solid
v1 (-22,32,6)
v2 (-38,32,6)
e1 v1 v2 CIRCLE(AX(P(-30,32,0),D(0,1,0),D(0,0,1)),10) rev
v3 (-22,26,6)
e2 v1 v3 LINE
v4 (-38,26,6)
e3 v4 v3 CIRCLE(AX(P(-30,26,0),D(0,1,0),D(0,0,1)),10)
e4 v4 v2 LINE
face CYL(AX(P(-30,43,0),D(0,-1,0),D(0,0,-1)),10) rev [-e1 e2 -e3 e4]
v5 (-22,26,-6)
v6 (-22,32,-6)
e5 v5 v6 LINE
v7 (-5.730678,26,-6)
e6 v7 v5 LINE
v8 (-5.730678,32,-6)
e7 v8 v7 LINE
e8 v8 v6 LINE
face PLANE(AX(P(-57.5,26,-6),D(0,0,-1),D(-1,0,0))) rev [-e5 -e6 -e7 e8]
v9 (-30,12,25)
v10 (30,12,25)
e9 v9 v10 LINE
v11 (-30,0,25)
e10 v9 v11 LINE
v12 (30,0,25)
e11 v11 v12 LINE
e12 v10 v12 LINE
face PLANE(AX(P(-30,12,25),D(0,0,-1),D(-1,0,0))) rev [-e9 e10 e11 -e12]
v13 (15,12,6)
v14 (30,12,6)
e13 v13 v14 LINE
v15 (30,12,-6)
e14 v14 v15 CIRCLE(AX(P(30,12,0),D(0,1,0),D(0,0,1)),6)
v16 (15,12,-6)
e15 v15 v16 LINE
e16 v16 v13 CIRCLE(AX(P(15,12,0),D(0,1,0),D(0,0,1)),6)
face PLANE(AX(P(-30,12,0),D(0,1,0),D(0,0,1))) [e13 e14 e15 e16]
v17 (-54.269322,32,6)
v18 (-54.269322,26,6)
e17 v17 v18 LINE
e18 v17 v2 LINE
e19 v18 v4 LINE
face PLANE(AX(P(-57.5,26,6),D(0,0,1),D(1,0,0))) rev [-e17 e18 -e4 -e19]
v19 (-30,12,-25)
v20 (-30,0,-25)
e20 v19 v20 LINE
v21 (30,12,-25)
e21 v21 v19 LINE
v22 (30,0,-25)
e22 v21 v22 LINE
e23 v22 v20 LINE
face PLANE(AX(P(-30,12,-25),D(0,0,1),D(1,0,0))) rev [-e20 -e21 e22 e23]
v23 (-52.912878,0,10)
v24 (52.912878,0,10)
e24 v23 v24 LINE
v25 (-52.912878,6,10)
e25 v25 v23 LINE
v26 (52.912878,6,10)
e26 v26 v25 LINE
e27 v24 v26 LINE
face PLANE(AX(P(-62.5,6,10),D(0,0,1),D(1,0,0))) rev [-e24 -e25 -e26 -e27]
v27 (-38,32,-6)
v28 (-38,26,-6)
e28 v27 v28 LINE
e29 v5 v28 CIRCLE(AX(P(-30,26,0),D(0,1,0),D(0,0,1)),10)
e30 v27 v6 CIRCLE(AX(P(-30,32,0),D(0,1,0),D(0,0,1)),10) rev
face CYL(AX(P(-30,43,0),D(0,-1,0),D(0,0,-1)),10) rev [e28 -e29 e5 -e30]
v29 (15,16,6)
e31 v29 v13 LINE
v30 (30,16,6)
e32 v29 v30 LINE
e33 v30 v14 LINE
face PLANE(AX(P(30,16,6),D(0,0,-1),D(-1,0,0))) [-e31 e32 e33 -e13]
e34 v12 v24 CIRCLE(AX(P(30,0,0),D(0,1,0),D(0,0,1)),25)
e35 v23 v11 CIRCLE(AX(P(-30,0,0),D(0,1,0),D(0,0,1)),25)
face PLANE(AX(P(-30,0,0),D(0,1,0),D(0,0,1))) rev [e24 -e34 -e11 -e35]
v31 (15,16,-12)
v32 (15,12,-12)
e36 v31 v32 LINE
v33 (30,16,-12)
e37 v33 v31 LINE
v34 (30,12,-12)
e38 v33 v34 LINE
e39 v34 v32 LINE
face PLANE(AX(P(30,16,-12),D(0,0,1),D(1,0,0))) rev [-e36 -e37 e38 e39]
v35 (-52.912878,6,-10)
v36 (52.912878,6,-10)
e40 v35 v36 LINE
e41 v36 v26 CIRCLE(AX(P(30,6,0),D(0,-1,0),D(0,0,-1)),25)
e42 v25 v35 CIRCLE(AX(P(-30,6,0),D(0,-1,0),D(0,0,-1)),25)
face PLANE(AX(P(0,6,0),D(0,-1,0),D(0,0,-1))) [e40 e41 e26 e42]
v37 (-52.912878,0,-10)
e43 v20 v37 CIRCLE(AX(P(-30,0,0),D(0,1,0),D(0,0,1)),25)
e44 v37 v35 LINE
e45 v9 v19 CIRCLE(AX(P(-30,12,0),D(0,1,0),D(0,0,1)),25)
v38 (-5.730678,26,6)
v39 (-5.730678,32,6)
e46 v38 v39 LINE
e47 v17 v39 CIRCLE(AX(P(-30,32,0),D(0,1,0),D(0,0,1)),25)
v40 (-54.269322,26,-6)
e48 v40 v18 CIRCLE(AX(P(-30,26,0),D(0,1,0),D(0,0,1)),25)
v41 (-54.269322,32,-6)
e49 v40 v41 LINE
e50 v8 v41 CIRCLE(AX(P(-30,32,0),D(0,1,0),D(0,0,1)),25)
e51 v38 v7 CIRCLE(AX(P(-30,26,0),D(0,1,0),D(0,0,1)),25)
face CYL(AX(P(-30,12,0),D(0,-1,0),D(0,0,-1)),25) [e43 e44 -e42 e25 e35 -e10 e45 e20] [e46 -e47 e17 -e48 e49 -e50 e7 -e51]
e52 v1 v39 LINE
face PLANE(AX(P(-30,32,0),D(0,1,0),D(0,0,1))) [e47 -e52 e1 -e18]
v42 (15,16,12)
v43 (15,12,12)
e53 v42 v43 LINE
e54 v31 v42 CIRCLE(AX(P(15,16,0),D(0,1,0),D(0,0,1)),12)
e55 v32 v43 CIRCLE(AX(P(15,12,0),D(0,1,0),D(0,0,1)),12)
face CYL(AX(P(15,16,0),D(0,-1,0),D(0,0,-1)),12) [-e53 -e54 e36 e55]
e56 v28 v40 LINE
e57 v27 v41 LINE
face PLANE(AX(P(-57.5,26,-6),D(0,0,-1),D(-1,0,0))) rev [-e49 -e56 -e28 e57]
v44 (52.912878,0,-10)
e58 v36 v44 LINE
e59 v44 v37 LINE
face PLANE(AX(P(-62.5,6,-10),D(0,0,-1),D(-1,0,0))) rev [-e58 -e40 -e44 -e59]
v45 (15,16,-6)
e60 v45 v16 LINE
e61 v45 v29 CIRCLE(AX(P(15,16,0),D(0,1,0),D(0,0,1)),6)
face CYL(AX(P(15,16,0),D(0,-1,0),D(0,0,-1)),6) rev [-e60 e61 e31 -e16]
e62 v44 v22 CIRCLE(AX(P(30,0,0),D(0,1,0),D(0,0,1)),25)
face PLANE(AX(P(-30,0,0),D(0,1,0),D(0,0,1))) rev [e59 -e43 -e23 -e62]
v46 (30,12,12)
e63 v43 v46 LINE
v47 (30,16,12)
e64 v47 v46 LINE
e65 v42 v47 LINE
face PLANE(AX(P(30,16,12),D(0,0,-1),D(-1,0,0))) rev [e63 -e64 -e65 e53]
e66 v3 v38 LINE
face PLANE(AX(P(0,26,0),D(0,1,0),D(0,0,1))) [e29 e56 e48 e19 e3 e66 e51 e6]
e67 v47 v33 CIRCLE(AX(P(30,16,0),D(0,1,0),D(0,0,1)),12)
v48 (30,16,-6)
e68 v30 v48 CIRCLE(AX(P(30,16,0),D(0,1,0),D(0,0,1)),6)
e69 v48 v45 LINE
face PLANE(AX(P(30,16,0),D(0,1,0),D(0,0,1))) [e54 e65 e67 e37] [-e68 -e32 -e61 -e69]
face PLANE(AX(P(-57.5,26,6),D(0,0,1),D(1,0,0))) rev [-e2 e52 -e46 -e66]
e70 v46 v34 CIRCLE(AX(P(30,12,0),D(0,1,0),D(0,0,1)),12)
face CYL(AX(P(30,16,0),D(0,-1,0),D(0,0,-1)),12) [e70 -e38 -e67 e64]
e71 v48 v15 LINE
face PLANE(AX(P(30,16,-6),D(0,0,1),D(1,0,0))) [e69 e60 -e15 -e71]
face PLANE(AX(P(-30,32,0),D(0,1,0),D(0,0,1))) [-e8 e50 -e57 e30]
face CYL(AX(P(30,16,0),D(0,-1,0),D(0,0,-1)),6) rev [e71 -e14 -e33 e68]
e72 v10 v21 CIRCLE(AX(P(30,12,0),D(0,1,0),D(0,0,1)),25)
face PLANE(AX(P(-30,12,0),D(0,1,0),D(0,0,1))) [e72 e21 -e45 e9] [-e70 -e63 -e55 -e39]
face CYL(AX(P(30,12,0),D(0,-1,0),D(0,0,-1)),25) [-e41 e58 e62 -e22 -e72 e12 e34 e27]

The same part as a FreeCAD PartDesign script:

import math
import FreeCAD as App
import Part
import Sketcher

V = App.Vector
Q = App.Units.Quantity


def add_polygon(sketch, points):
    """Adds a closed chain of lines whose ends are joined by coincident constraints."""
    first, n = sketch.GeometryCount, len(points)
    for a, b in zip(points, points[1:] + points[:1]):
        sketch.addGeometry(Part.LineSegment(App.Vector(*a, 0), App.Vector(*b, 0)), False)
    for i in range(n):
        sketch.addConstraint(Sketcher.Constraint("Coincident", first + i, 2, first + (i + 1) % n, 1))

doc = App.newDocument("Part")
body = doc.addObject("PartDesign::Body", "Body")

sketch1 = body.newObject("Sketcher::SketchObject", "Sketch")
sketch1.AttachmentSupport = (doc.getObject("XZ_Plane"), [""])
sketch1.MapMode = "FlatFace"
sketch1.addGeometry(Part.LineSegment(V(30, -25, 0), V(-30, -25, 0)), False)
sketch1.addGeometry(Part.ArcOfCircle(Part.Circle(V(-30, 0, 0), V(0, 0, 1), 25), math.radians(90), math.radians(270)), False)
sketch1.addGeometry(Part.LineSegment(V(-30, 25, 0), V(30, 25, 0)), False)
sketch1.addGeometry(Part.ArcOfCircle(Part.Circle(V(30, 0, 0), V(0, 0, 1), 25), math.radians(-90), math.radians(90)), False)
sketch1.addConstraint(Sketcher.Constraint("Tangent", 0, 2, 1, 2))
sketch1.addConstraint(Sketcher.Constraint("Tangent", 1, 1, 2, 1))
sketch1.addConstraint(Sketcher.Constraint("Tangent", 2, 2, 3, 2))
sketch1.addConstraint(Sketcher.Constraint("Tangent", 3, 1, 0, 1))
sketch1.addConstraint(Sketcher.Constraint("Horizontal", 0))
sketch1.addConstraint(Sketcher.Constraint("Horizontal", 2))
sketch1.addConstraint(Sketcher.Constraint("Symmetric", 1, 3, 3, 3, -1, 1))
sketch1.addConstraint(Sketcher.Constraint("Radius", 1, Q("25 mm")))
sketch1.addConstraint(Sketcher.Constraint("DistanceX", 0, 2, 0, 1, Q("60 mm")))
pad1 = body.newObject("PartDesign::Pad", "Pad")
pad1.Profile = sketch1
pad1.Length = 12
pad1.Reversed = True

sketch2 = body.newObject("Sketcher::SketchObject", "Sketch001")
sketch2.AttachmentSupport = (doc.getObject("XZ_Plane"), [""])
sketch2.MapMode = "FlatFace"
sketch2.AttachmentOffset = App.Placement(V(0, 0, -12), App.Rotation())
sketch2.addGeometry(Part.Circle(V(-30, 0, 0), V(0, 0, 1), 25), False)
sketch2.addConstraint(Sketcher.Constraint("PointOnObject", 0, 3, -1))
sketch2.addConstraint(Sketcher.Constraint("Diameter", 0, Q("50 mm")))
sketch2.addConstraint(Sketcher.Constraint("DistanceX", 0, 3, -1, 1, Q("30 mm")))
pad2 = body.newObject("PartDesign::Pad", "Pad001")
pad2.Profile = sketch2
pad2.Length = 20
pad2.Reversed = True

sketch3 = body.newObject("Sketcher::SketchObject", "Sketch002")
sketch3.AttachmentSupport = (doc.getObject("XZ_Plane"), [""])
sketch3.MapMode = "FlatFace"
sketch3.AttachmentOffset = App.Placement(V(0, 0, -12), App.Rotation())
sketch3.addGeometry(Part.LineSegment(V(15, 12, 0), V(30, 12, 0)), False)
sketch3.addGeometry(Part.ArcOfCircle(Part.Circle(V(30, 0, 0), V(0, 0, 1), 12), math.radians(-90), math.radians(90)), False)
sketch3.addGeometry(Part.LineSegment(V(30, -12, 0), V(15, -12, 0)), False)
sketch3.addGeometry(Part.ArcOfCircle(Part.Circle(V(15, 0, 0), V(0, 0, 1), 12), math.radians(90), math.radians(270)), False)
sketch3.addGeometry(Part.LineSegment(V(30, 6, 0), V(15, 6, 0)), False)
sketch3.addGeometry(Part.ArcOfCircle(Part.Circle(V(15, 0, 0), V(0, 0, 1), 6), math.radians(90), math.radians(270)), False)
sketch3.addGeometry(Part.LineSegment(V(15, -6, 0), V(30, -6, 0)), False)
sketch3.addGeometry(Part.ArcOfCircle(Part.Circle(V(30, 0, 0), V(0, 0, 1), 6), math.radians(-90), math.radians(90)), False)
sketch3.addConstraint(Sketcher.Constraint("Tangent", 0, 2, 1, 2))
sketch3.addConstraint(Sketcher.Constraint("Tangent", 1, 1, 2, 1))
sketch3.addConstraint(Sketcher.Constraint("Tangent", 2, 2, 3, 2))
sketch3.addConstraint(Sketcher.Constraint("Tangent", 3, 1, 0, 1))
sketch3.addConstraint(Sketcher.Constraint("Tangent", 4, 2, 5, 1))
sketch3.addConstraint(Sketcher.Constraint("Tangent", 5, 2, 6, 1))
sketch3.addConstraint(Sketcher.Constraint("Tangent", 6, 2, 7, 1))
sketch3.addConstraint(Sketcher.Constraint("Tangent", 7, 2, 4, 1))
sketch3.addConstraint(Sketcher.Constraint("Horizontal", 0))
sketch3.addConstraint(Sketcher.Constraint("Horizontal", 2))
sketch3.addConstraint(Sketcher.Constraint("Horizontal", 4))
sketch3.addConstraint(Sketcher.Constraint("Horizontal", 6))
sketch3.addConstraint(Sketcher.Constraint("Coincident", 5, 3, 3, 3))
sketch3.addConstraint(Sketcher.Constraint("PointOnObject", 1, 3, -1))
sketch3.addConstraint(Sketcher.Constraint("Vertical", 7, 3, 0, 2))
sketch3.addConstraint(Sketcher.Constraint("Radius", 1, Q("12 mm")))
sketch3.addConstraint(Sketcher.Constraint("Radius", 5, Q("6 mm")))
sketch3.addConstraint(Sketcher.Constraint("DistanceX", 0, 1, 0, 2, Q("15 mm")))
sketch3.addConstraint(Sketcher.Constraint("DistanceX", -1, 1, 1, 3, Q("30 mm")))
pad3 = body.newObject("PartDesign::Pad", "Pad002")
pad3.Profile = sketch3
pad3.Length = 4
pad3.Reversed = True

sketch4 = body.newObject("Sketcher::SketchObject", "Sketch003")
sketch4.AttachmentSupport = (doc.getObject("XZ_Plane"), [""])
sketch4.MapMode = "FlatFace"
sketch4.AttachmentOffset = App.Placement(V(0, 0, -32), App.Rotation())
add_polygon(sketch4, [(-58, -6), (-58, 6), (-2, 6), (-2, -6)])
sketch4.addConstraint(Sketcher.Constraint("Vertical", 0))
sketch4.addConstraint(Sketcher.Constraint("Horizontal", 1))
sketch4.addConstraint(Sketcher.Constraint("Vertical", 2))
sketch4.addConstraint(Sketcher.Constraint("Horizontal", 3))
sketch4.addConstraint(Sketcher.Constraint("DistanceX", 1, 1, 1, 2, Q("55 mm")))
sketch4.addConstraint(Sketcher.Constraint("DistanceY", 0, 1, 0, 2, Q("12 mm")))
sketch4.addConstraint(Sketcher.Constraint("DistanceY", -1, 1, 0, 2, Q("6 mm")))
sketch4.addConstraint(Sketcher.Constraint("DistanceX", 0, 2, -1, 1, Q("57.5 mm")))
pocket1 = body.newObject("PartDesign::Pocket", "Pocket")
pocket1.Profile = sketch4
pocket1.Length = 6
pocket1.Reversed = True

sketch5 = body.newObject("Sketcher::SketchObject", "Sketch004")
sketch5.AttachmentSupport = (doc.getObject("XZ_Plane"), [""])
sketch5.MapMode = "FlatFace"
sketch5.AttachmentOffset = App.Placement(V(0, 0, -26), App.Rotation())
sketch5.addGeometry(Part.Circle(V(-30, 0, 0), V(0, 0, 1), 10), False)
sketch5.addConstraint(Sketcher.Constraint("PointOnObject", 0, 3, -1))
sketch5.addConstraint(Sketcher.Constraint("Diameter", 0, Q("20 mm")))
sketch5.addConstraint(Sketcher.Constraint("DistanceX", 0, 3, -1, 1, Q("30 mm")))
pocket2 = body.newObject("PartDesign::Pocket", "Pocket001")
pocket2.Profile = sketch5
pocket2.Length = 17

sketch6 = body.newObject("Sketcher::SketchObject", "Sketch005")
sketch6.AttachmentSupport = (doc.getObject("XZ_Plane"), [""])
sketch6.MapMode = "FlatFace"
add_polygon(sketch6, [(-62, 10), (-62, -10), (62, -10), (62, 10)])
sketch6.addConstraint(Sketcher.Constraint("Vertical", 0))
sketch6.addConstraint(Sketcher.Constraint("Horizontal", 1))
sketch6.addConstraint(Sketcher.Constraint("Vertical", 2))
sketch6.addConstraint(Sketcher.Constraint("Horizontal", 3))
sketch6.addConstraint(Sketcher.Constraint("Symmetric", 0, 2, 2, 2, -1, 1))
sketch6.addConstraint(Sketcher.Constraint("DistanceX", 1, 1, 1, 2, Q("125 mm")))
sketch6.addConstraint(Sketcher.Constraint("DistanceY", 0, 2, 0, 1, Q("20 mm")))
pocket3 = body.newObject("PartDesign::Pocket", "Pocket002")
pocket3.Profile = sketch6
pocket3.Length = 6

doc.recompute()
